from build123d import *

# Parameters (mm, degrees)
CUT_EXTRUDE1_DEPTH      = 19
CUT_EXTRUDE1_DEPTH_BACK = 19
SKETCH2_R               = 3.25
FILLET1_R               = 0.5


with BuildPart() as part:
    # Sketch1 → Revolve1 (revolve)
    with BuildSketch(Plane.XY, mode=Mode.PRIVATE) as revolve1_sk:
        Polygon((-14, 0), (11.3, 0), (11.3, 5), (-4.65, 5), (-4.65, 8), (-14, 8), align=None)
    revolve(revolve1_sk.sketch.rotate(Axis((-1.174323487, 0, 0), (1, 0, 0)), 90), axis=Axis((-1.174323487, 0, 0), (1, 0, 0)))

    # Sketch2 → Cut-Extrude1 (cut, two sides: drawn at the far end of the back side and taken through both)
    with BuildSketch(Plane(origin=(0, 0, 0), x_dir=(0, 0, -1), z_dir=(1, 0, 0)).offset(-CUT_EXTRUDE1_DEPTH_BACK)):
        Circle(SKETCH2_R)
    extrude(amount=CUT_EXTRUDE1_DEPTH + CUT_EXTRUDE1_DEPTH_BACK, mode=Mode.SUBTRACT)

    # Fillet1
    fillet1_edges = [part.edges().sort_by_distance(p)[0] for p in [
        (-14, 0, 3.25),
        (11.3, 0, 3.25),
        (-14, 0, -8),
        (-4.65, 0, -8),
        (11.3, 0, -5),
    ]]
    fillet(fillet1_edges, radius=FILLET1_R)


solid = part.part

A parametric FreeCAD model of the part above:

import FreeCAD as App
import Part
import Sketcher

V = App.Vector
Q = App.Units.Quantity


def edges_at(feature, points):
    """Names of the edges that pass closest to the given points."""
    edges = feature.Shape.Edges
    near = lambda p: min(range(len(edges)), key=lambda i: edges[i].distToShape(Part.Vertex(*p))[0])
    return sorted({f"Edge{near(p) + 1}" for p in points})

doc = App.newDocument("Part")
params = doc.addObject("Spreadsheet::Sheet", "Params")
for row, (alias, value) in enumerate([
    ("sketch1_height", "5 mm"),
    ("sketch1_height2", "3 mm"),
    ("sketch1_width", "25.3 mm"),
    ("sketch1_width2", "15.95 mm"),
    ("revolution_angle", "360 deg"),
    ("sketch2_diameter", "6.5 mm"),
    ("fillet_radius", "0.5 mm"),
], start=1):
    params.set(f"A{row}", alias)
    params.set(f"B{row}", "=" + value)
    params.setAlias(f"B{row}", alias)

body = doc.addObject("PartDesign::Body", "Body")

# Sketch on XY plane
sketch1 = doc.addObject("Sketcher::SketchObject", "Sketch")
body.addObject(sketch1)
sketch1.AttachmentSupport = (doc.XY_Plane, [""])
sketch1.MapMode = "FlatFace"
sketch1.addGeometry([
    Part.LineSegment(V(-14, 0, 0), V(11.3, 0, 0)),  # 0
    Part.LineSegment(V(11.3, 0, 0), V(11.3, 5, 0)),  # 1
    Part.LineSegment(V(11.3, 5, 0), V(-4.7, 5, 0)),  # 2
    Part.LineSegment(V(-4.7, 5, 0), V(-4.7, 8, 0)),  # 3
    Part.LineSegment(V(-4.7, 8, 0), V(-14, 8, 0)),  # 4
    Part.LineSegment(V(-14, 8, 0), V(-14, 0, 0)),  # 5
], False)
sketch1.addConstraint([
    Sketcher.Constraint("Coincident", 0, 2, 1, 1),
    Sketcher.Constraint("Coincident", 1, 2, 2, 1),
    Sketcher.Constraint("Coincident", 2, 2, 3, 1),
    Sketcher.Constraint("Coincident", 3, 2, 4, 1),
    Sketcher.Constraint("Coincident", 4, 2, 5, 1),
    Sketcher.Constraint("Coincident", 5, 2, 0, 1),
    Sketcher.Constraint("Horizontal", 0),
    Sketcher.Constraint("Vertical", 1),
    Sketcher.Constraint("Horizontal", 2),
    Sketcher.Constraint("Vertical", 3),
    Sketcher.Constraint("Horizontal", 4),
    Sketcher.Constraint("Vertical", 5),
    Sketcher.Constraint("PointOnObject", 0, 2, -1),
    Sketcher.Constraint("DistanceY", 1, 1, 1, 2, Q("5 mm")),
    Sketcher.Constraint("DistanceY", 3, 1, 3, 2, Q("3 mm")),
    Sketcher.Constraint("DistanceX", 0, 1, 0, 2, Q("25.3 mm")),
    Sketcher.Constraint("DistanceX", 4, 2, -1, 1, Q("14 mm")),
    Sketcher.Constraint("DistanceX", 2, 2, 2, 1, Q("15.95 mm")),
])
sketch1.setExpression("Constraints[13]", "Params.sketch1_height")
sketch1.setExpression("Constraints[14]", "Params.sketch1_height2")
sketch1.setExpression("Constraints[15]", "Params.sketch1_width")
sketch1.setExpression("Constraints[17]", "Params.sketch1_width2")
revolution = doc.addObject("PartDesign::Revolution", "Revolution")
body.addObject(revolution)
revolution.Profile = sketch1
revolution.ReferenceAxis = (sketch1, ["H_Axis"])
revolution.setExpression("Angle", "Params.revolution_angle")

# Sketch on YZ plane
sketch2 = doc.addObject("Sketcher::SketchObject", "Sketch001")
body.addObject(sketch2)
sketch2.AttachmentSupport = (doc.YZ_Plane, [""])
sketch2.MapMode = "FlatFace"
sketch2.addGeometry(Part.Circle(V(0, 0, 0), V(0, 0, 1), 3.2), False)
sketch2.addConstraint([
    Sketcher.Constraint("Coincident", 0, 3, -1, 1),
    Sketcher.Constraint("Diameter", 0, Q("6.5 mm")),
])
sketch2.setExpression("Constraints[1]", "Params.sketch2_diameter")
pocket1 = doc.addObject("PartDesign::Pocket", "Pocket")
body.addObject(pocket1)
pocket1.Profile = sketch2
pocket1.Type = "ThroughAll"
pocket1.Midplane = True
doc.recompute()

fillet = doc.addObject("PartDesign::Fillet", "Fillet")
body.addObject(fillet)
fillet.Base = (pocket1, edges_at(pocket1, [
    (-14, 0, 3.25),
    (11.3, 0, 3.25),
    (-14, 0, -8),
    (-4.65, 0, -8),
    (11.3, 0, -5),
]))
fillet.setExpression("Radius", "Params.fillet_radius")

doc.recompute()
